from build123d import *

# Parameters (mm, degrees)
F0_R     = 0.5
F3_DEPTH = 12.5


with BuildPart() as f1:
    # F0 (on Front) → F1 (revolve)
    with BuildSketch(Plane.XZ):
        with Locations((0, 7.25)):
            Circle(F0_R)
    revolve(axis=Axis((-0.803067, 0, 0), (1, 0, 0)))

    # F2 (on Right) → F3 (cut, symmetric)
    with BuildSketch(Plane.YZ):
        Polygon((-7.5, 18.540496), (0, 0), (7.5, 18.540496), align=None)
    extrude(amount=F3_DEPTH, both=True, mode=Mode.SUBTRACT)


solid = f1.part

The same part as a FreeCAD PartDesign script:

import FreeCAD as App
import Part
import Sketcher
Q = App.Units.Quantity

doc = App.newDocument("Part")
body = doc.addObject("PartDesign::Body", "Body")

sketch1 = doc.addObject("Sketcher::SketchObject", "Sketch")
body.addObject(sketch1)
sketch1.AttachmentSupport = (doc.XZ_Plane, [""])
sketch1.MapMode = "FlatFace"
sketch1.addGeometry(Part.Circle(App.Vector(0, 7.2, 0), App.Vector(0, 0, 1), 0.5), False)
sketch1.addConstraint(Sketcher.Constraint("PointOnObject", 0, 3, -2))
sketch1.addConstraint(Sketcher.Constraint("Diameter", 0, Q("1 mm")))
sketch1.addConstraint(Sketcher.Constraint("DistanceY", -1, 1, 0, 3, Q("7.25 mm")))
revolution = doc.addObject("PartDesign::Revolution", "Revolution")
body.addObject(revolution)
revolution.Profile = sketch1
revolution.ReferenceAxis = (sketch1, ["H_Axis"])
revolution.Angle = 360

sketch2 = doc.addObject("Sketcher::SketchObject", "Sketch001")
body.addObject(sketch2)
sketch2.AttachmentSupport = (doc.YZ_Plane, [""])
sketch2.MapMode = "FlatFace"
sketch2.addGeometry(Part.LineSegment(App.Vector(-8, 19, 0), App.Vector(0, 0, 0)), False)
sketch2.addGeometry(Part.LineSegment(App.Vector(0, 0, 0), App.Vector(8, 19, 0)), False)
sketch2.addGeometry(Part.LineSegment(App.Vector(8, 19, 0), App.Vector(-8, 19, 0)), False)
sketch2.addConstraint(Sketcher.Constraint("Coincident", 0, 2, 1, 1))
sketch2.addConstraint(Sketcher.Constraint("Coincident", 1, 2, 2, 1))
sketch2.addConstraint(Sketcher.Constraint("Coincident", 2, 2, 0, 1))
sketch2.addConstraint(Sketcher.Constraint("Horizontal", 2))
sketch2.addConstraint(Sketcher.Constraint("Coincident", 0, 2, -1, 1))
sketch2.addConstraint(Sketcher.Constraint("Equal", 0, 1))
sketch2.addConstraint(Sketcher.Constraint("DistanceX", 2, 2, 2, 1, Q("15 mm")))
sketch2.addConstraint(Sketcher.Constraint("Distance", 0, Q("20 mm")))
pocket1 = doc.addObject("PartDesign::Pocket", "Pocket")
body.addObject(pocket1)
pocket1.Profile = sketch2
pocket1.Length = 25
pocket1.Midplane = True

doc.recompute()
